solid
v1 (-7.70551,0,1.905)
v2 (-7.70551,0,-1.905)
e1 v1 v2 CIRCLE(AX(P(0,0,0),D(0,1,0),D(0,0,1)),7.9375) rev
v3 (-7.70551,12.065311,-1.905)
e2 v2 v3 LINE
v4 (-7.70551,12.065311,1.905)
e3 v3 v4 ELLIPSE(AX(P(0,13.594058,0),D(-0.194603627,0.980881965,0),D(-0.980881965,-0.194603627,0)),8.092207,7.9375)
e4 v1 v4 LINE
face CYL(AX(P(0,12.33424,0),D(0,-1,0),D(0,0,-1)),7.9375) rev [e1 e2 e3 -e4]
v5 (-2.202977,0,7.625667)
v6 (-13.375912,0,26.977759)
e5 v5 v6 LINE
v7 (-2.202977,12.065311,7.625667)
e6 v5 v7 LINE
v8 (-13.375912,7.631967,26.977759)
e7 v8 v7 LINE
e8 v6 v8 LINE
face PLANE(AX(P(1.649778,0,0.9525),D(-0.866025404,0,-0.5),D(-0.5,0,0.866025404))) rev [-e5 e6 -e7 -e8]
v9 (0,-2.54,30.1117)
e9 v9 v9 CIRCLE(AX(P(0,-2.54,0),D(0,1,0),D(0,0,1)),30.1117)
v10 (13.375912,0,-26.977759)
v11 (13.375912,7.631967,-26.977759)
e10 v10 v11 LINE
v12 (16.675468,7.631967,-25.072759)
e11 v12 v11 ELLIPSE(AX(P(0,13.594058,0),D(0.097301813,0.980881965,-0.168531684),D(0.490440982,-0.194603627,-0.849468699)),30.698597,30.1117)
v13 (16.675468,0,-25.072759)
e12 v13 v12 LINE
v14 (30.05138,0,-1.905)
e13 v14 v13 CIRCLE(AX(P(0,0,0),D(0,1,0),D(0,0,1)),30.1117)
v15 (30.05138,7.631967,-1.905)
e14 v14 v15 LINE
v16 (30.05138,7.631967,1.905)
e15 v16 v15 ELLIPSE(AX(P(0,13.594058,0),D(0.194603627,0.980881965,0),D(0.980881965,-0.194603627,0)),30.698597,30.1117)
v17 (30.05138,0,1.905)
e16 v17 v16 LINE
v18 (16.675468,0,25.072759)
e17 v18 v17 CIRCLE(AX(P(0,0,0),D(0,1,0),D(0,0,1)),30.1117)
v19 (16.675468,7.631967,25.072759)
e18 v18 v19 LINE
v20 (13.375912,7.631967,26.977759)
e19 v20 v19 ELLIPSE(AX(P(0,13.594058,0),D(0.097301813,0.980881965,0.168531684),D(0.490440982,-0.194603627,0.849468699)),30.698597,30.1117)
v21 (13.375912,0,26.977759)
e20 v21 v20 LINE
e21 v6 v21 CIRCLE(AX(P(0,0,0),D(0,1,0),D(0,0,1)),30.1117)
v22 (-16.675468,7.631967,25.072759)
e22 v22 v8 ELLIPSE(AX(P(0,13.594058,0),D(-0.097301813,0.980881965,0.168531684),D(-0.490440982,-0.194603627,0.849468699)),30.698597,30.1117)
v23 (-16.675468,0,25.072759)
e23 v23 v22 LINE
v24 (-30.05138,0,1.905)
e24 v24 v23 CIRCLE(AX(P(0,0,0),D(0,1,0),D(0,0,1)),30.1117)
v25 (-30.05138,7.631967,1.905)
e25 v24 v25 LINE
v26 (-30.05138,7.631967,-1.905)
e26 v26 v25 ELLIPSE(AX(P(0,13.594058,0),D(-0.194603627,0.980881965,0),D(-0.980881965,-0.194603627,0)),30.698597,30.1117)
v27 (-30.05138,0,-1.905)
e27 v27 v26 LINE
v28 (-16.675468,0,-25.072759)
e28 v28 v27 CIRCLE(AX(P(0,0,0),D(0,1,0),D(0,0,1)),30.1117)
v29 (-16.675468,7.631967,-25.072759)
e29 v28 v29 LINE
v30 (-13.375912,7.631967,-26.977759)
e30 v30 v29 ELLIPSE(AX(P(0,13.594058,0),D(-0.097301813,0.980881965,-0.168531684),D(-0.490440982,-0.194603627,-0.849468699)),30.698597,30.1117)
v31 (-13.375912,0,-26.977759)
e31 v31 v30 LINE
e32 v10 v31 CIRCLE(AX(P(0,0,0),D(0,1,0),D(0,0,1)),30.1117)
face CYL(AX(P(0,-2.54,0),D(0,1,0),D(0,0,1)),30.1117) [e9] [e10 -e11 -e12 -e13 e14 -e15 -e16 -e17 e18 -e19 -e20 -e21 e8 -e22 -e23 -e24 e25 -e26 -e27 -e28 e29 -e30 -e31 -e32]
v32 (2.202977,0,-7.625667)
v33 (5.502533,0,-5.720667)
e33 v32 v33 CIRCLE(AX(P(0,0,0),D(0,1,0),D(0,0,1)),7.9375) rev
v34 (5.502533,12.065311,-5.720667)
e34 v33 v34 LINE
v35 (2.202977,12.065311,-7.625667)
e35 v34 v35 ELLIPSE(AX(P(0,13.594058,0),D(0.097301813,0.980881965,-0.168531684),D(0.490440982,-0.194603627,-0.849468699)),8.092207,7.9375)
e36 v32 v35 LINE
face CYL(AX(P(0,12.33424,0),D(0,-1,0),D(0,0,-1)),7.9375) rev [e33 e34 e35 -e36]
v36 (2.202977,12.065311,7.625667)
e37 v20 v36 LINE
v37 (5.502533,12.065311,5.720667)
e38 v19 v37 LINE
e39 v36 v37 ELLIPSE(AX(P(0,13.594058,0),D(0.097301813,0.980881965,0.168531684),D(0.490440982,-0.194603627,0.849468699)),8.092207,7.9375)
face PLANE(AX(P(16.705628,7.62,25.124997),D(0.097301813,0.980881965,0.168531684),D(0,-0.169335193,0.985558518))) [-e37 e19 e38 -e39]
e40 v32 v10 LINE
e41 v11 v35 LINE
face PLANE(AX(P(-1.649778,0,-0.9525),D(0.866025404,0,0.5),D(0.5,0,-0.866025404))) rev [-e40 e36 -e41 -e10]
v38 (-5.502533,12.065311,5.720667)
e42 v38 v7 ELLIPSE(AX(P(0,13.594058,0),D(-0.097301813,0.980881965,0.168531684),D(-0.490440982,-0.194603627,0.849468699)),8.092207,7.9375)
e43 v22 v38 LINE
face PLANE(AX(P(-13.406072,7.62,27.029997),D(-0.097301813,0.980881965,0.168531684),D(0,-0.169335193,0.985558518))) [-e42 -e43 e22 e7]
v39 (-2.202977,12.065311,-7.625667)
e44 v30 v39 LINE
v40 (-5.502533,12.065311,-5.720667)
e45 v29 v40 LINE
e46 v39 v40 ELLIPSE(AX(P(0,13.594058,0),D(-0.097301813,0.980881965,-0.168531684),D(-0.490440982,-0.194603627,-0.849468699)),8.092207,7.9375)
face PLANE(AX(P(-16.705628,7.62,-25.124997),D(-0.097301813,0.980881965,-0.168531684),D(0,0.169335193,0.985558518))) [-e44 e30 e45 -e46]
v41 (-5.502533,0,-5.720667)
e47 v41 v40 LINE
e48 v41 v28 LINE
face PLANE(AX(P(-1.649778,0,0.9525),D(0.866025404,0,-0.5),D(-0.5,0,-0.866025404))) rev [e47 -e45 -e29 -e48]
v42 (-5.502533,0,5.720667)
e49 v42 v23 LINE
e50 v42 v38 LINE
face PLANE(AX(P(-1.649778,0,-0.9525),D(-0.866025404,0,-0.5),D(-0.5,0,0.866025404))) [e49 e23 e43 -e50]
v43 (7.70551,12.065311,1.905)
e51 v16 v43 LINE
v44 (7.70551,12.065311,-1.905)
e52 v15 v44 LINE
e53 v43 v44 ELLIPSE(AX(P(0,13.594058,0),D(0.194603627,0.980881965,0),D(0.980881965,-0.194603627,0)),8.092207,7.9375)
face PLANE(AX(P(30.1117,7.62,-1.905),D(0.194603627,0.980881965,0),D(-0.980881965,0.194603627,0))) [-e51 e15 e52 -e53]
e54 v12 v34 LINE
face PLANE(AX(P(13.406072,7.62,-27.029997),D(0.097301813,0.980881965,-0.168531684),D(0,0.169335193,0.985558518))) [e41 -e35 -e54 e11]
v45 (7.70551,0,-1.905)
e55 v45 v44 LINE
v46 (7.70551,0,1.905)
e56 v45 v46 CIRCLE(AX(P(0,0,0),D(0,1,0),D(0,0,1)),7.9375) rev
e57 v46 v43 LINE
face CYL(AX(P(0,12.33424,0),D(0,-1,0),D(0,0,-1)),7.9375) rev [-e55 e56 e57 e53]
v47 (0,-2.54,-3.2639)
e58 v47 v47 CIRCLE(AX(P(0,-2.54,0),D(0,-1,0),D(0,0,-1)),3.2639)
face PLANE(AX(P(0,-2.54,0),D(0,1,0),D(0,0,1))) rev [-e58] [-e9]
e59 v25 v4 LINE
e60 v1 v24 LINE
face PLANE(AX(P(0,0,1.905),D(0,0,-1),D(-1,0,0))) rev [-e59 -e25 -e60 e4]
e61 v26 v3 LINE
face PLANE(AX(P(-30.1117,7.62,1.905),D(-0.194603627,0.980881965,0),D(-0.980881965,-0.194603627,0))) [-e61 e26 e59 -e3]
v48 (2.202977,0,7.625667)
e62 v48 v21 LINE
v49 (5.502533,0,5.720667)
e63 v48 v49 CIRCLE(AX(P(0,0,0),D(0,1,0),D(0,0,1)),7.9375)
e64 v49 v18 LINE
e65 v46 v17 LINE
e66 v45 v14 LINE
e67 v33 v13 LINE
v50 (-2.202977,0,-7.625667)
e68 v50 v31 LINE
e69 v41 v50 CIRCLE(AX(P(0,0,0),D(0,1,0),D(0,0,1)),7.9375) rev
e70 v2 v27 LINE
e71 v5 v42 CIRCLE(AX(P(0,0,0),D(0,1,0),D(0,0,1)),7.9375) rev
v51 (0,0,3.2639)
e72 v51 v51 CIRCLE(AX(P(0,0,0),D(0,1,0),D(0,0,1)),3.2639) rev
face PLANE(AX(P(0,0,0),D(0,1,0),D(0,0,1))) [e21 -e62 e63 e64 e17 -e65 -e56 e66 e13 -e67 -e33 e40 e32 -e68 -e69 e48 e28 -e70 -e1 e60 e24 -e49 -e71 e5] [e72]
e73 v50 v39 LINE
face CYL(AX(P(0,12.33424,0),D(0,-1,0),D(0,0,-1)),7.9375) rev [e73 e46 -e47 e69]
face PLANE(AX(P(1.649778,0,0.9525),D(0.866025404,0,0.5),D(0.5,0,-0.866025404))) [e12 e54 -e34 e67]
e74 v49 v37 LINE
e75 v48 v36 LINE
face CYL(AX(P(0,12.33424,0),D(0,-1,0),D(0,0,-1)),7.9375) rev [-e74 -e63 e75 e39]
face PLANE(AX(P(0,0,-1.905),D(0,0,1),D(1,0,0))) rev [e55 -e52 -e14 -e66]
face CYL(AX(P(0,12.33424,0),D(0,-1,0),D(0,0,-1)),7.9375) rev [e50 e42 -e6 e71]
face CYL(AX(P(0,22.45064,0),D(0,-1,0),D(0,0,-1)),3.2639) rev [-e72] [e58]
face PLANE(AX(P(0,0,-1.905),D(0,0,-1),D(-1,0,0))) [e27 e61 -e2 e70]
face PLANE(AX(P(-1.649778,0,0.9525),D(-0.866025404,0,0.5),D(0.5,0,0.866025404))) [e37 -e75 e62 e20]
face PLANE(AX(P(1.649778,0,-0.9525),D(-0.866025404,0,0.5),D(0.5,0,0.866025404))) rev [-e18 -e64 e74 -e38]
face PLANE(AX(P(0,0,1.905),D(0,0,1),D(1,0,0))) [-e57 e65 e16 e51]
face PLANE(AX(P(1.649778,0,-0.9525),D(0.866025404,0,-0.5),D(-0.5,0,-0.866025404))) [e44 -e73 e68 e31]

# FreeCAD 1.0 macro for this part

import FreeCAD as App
import Part
import Sketcher
from FreeCAD import Vector
Q = App.Units.Quantity


def add_polygon(sketch, points):
    """Adds a closed chain of lines whose ends are joined by coincident constraints."""
    first, n = sketch.GeometryCount, len(points)
    for a, b in zip(points, points[1:] + points[:1]):
        sketch.addGeometry(Part.LineSegment(App.Vector(*a, 0), App.Vector(*b, 0)), False)
    for i in range(n):
        sketch.addConstraint(Sketcher.Constraint("Coincident", first + i, 2, first + (i + 1) % n, 1))

doc = App.newDocument("Part")
body = doc.addObject("PartDesign::Body", "Body")

sketch1 = body.newObject("Sketcher::SketchObject", "Sketch")
sketch1.AttachmentSupport = (doc.getObject("XZ_Plane"), [""])
sketch1.MapMode = "FlatFace"
sketch1.addGeometry(Part.Circle(Vector(0, 0, 0), Vector(0, 0, 1), 30), False)
sketch1.addConstraint([
    Sketcher.Constraint("Coincident", 0, 3, -1, 1),
    Sketcher.Constraint("Diameter", 0, Q("2.371 in")),
])
pad1 = body.newObject("PartDesign::Pad", "Pad")
pad1.Profile = sketch1
pad1.Length = Q("0.1 in")

sketch2 = body.newObject("Sketcher::SketchObject", "Sketch001")
sketch2.AttachmentSupport = (doc.getObject("XY_Plane"), [""])
sketch2.MapMode = "FlatFace"
add_polygon(sketch2, [(30, 0), (30, 8), (6, 12), (6, 0)])
sketch2.addConstraint([
    Sketcher.Constraint("Vertical", 0),
    Sketcher.Constraint("Vertical", 2),
    Sketcher.Constraint("Horizontal", 3),
    Sketcher.Constraint("PointOnObject", 2, 2, -1),
    Sketcher.Constraint("DistanceY", 0, 1, 0, 2, Q("0.3 in")),
    Sketcher.Constraint("DistanceX", -1, 1, 1, 2, Q("0.25 in")),
    Sketcher.Constraint("DistanceX", 3, 1, 3, 2, Q("0.9355 in")),
    Sketcher.Constraint("DistanceY", 2, 2, 2, 1, Q("0.4856 in")),
])
pad2 = body.newObject("PartDesign::Pad", "Pad001")
pad2.Profile = sketch2
pad2.Length = Q("0.15 in")
pad2.Midplane = True
doc.recompute()

polarpattern = body.newObject("PartDesign::PolarPattern", "PolarPattern")
polarpattern.Originals = [pad2]
polarpattern.Axis = (doc.getObject("Y_Axis"), [""])
polarpattern.Angle = 360
polarpattern.Occurrences = 6
body.Tip = polarpattern

sketch3 = body.newObject("Sketcher::SketchObject", "Sketch002")
sketch3.AttachmentSupport = (doc.getObject("XZ_Plane"), [""])
sketch3.MapMode = "FlatFace"
sketch3.AttachmentOffset = App.Placement(Vector(0, 0, 0.1 * 25.4), App.Rotation())
sketch3.addGeometry([
    Part.Circle(Vector(0, 0, 0), Vector(0, 0, 1), 35),
    Part.Circle(Vector(0, 0, 0), Vector(0, 0, 1), 30),
    Part.Circle(Vector(0, 0, 0), Vector(0, 0, 1), 8),
], False)
sketch3.addConstraint([
    Sketcher.Constraint("Coincident", 0, 3, -1, 1),
    Sketcher.Constraint("Coincident", 1, 3, -1, 1),
    Sketcher.Constraint("Coincident", 2, 3, -1, 1),
    Sketcher.Constraint("Diameter", 0, Q("2.75 in")),
    Sketcher.Constraint("Diameter", 1, Q("2.371 in")),
    Sketcher.Constraint("Diameter", 2, Q("0.625 in")),
])
pocket1 = body.newObject("PartDesign::Pocket", "Pocket")
pocket1.Profile = sketch3
pocket1.Length = 46.107338

sketch4 = body.newObject("Sketcher::SketchObject", "Sketch003")
sketch4.AttachmentSupport = (doc.getObject("XZ_Plane"), [""])
sketch4.MapMode = "FlatFace"
sketch4.AttachmentOffset = App.Placement(Vector(0, 0, 0.1 * 25.4), App.Rotation())
sketch4.addGeometry([
    Part.Circle(Vector(0, 0, 0), Vector(0, 0, 1), 7.9),
    Part.Circle(Vector(0, 0, 0), Vector(0, 0, 1), 3.3),
], False)
sketch4.addConstraint([
    Sketcher.Constraint("Coincident", 0, 3, -1, 1),
    Sketcher.Constraint("Coincident", 1, 3, -1, 1),
    Sketcher.Constraint("Diameter", 0, Q("0.625 in")),
    Sketcher.Constraint("Diameter", 1, Q("0.257 in")),
])
pad3 = body.newObject("PartDesign::Pad", "Pad002")
pad3.Profile = sketch4
pad3.Length = Q("0.1 in")
pad3.Reversed = True

doc.recompute()
